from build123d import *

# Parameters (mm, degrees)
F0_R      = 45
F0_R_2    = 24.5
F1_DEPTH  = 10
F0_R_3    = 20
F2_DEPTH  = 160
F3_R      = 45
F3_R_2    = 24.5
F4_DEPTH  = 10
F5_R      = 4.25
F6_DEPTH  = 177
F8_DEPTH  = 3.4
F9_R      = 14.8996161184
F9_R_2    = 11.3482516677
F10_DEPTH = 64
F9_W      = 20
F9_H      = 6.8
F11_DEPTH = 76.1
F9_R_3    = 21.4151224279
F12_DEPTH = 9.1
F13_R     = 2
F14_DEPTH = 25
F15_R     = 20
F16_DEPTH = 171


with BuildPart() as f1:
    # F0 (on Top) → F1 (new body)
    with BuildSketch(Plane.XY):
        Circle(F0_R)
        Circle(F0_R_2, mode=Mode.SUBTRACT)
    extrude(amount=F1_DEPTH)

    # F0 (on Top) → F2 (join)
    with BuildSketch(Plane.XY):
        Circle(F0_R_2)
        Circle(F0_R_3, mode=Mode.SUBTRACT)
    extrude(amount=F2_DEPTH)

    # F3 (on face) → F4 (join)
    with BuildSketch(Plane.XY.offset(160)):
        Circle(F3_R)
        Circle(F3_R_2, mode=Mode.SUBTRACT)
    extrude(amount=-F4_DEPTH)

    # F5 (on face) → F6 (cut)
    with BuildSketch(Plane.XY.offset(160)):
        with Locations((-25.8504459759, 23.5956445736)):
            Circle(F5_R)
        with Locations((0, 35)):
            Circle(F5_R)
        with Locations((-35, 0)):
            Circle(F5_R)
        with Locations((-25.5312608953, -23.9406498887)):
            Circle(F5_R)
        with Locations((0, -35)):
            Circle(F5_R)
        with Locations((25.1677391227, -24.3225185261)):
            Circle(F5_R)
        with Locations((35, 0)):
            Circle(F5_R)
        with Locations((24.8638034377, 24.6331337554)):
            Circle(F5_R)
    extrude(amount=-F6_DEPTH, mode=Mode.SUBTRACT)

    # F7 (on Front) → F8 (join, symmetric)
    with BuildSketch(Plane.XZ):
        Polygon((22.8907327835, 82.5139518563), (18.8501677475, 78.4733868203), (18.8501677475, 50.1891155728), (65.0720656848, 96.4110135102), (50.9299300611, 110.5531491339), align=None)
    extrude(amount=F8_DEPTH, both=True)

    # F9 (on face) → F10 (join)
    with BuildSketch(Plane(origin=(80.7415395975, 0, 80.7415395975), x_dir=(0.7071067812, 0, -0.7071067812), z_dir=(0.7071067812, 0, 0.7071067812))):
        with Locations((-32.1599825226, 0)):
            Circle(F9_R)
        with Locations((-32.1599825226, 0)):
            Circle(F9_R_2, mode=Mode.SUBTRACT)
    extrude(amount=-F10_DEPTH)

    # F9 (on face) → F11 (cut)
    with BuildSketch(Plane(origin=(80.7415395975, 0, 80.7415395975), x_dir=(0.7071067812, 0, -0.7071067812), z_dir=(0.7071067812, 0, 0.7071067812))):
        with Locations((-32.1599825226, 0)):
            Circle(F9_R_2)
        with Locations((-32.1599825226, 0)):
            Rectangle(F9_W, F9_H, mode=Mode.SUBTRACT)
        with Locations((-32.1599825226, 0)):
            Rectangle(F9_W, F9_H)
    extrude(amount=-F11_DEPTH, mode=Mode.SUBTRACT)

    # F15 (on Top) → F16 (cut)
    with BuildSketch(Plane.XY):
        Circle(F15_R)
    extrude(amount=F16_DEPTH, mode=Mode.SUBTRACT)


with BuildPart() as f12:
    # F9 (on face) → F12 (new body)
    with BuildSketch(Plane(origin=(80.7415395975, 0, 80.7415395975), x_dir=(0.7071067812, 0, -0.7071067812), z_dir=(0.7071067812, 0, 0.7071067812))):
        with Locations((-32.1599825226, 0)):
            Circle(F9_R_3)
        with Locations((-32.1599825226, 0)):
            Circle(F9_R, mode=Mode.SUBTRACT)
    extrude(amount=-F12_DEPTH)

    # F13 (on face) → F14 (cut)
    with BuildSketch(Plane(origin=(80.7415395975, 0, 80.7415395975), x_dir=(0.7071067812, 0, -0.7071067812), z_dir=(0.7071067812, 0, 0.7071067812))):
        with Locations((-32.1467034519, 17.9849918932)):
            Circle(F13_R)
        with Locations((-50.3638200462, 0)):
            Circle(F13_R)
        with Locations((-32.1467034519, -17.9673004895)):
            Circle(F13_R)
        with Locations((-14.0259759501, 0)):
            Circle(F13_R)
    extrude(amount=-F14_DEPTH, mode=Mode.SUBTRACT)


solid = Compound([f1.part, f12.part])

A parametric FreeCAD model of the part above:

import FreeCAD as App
import Part
import Sketcher
Q = App.Units.Quantity


def add_polygon(sketch, points):
    """Adds a closed chain of lines whose ends are joined by coincident constraints."""
    first, n = sketch.GeometryCount, len(points)
    for a, b in zip(points, points[1:] + points[:1]):
        sketch.addGeometry(Part.LineSegment(App.Vector(*a, 0), App.Vector(*b, 0)), False)
    for i in range(n):
        sketch.addConstraint(Sketcher.Constraint("Coincident", first + i, 2, first + (i + 1) % n, 1))

doc = App.newDocument("Part")
params = doc.addObject("Spreadsheet::Sheet", "Params")
for row, (alias, value) in enumerate([
    ("sketch1_diameter", "90 mm"),
    ("sketch1_diameter2", "49 mm"),
    ("pad1_length", "10 mm"),
    ("sketch2_diameter", "49 mm"),
    ("sketch2_diameter2", "40 mm"),
    ("pad2_length", "160 mm"),
    ("sketch3_diameter", "90 mm"),
    ("sketch3_diameter2", "49 mm"),
    ("pad3_length", "10 mm"),
    ("sketch4_diameter", "8.5 mm"),
    ("pocket1_length", "177 mm"),
    ("sketch5_length", "20 mm"),
    ("pad4_length", "6.8 mm"),
    ("pad5_length", "64 mm"),
    ("pocket2_length", "76.1 mm"),
    ("sketch8_diameter", "40 mm"),
    ("pocket3_length", "171 mm"),
    ("pad6_length", "9.1 mm"),
    ("sketch10_diameter", "4 mm"),
    ("pocket4_length", "25 mm"),
], start=1):
    params.set(f"A{row}", alias)
    params.set(f"B{row}", "=" + value)
    params.setAlias(f"B{row}", alias)

body = doc.addObject("PartDesign::Body", "Body")

# Sketch on XY plane
sketch1 = body.newObject("Sketcher::SketchObject", "Sketch")
sketch1.AttachmentSupport = (doc.getObject("XY_Plane"), [""])
sketch1.MapMode = "FlatFace"
sketch1.addGeometry([
    Part.Circle(App.Vector(0, 0, 0), App.Vector(0, 0, 1), 45),
    Part.Circle(App.Vector(0, 0, 0), App.Vector(0, 0, 1), 24),
], False)
sketch1.addConstraint([
    Sketcher.Constraint("Coincident", 0, 3, -1, 1),
    Sketcher.Constraint("Coincident", 1, 3, -1, 1),
    Sketcher.Constraint("Diameter", 0, Q("90 mm")),
    Sketcher.Constraint("Diameter", 1, Q("49 mm")),
])
sketch1.setExpression("Constraints[2]", "Params.sketch1_diameter")
sketch1.setExpression("Constraints[3]", "Params.sketch1_diameter2")
pad1 = body.newObject("PartDesign::Pad", "Pad")
pad1.Profile = sketch1
pad1.setExpression("Length", "Params.pad1_length")

# Sketch on XY plane
sketch2 = body.newObject("Sketcher::SketchObject", "Sketch001")
sketch2.AttachmentSupport = (doc.getObject("XY_Plane"), [""])
sketch2.MapMode = "FlatFace"
sketch2.addGeometry([
    Part.Circle(App.Vector(0, 0, 0), App.Vector(0, 0, 1), 24),
    Part.Circle(App.Vector(0, 0, 0), App.Vector(0, 0, 1), 20),
], False)
sketch2.addConstraint([
    Sketcher.Constraint("Coincident", 0, 3, -1, 1),
    Sketcher.Constraint("Coincident", 1, 3, -1, 1),
    Sketcher.Constraint("Diameter", 0, Q("49 mm")),
    Sketcher.Constraint("Diameter", 1, Q("40 mm")),
])
sketch2.setExpression("Constraints[2]", "Params.sketch2_diameter")
sketch2.setExpression("Constraints[3]", "Params.sketch2_diameter2")
pad2 = body.newObject("PartDesign::Pad", "Pad001")
pad2.Profile = sketch2
pad2.setExpression("Length", "Params.pad2_length")

# Sketch on XY plane
sketch3 = body.newObject("Sketcher::SketchObject", "Sketch002")
sketch3.AttachmentSupport = (doc.getObject("XY_Plane"), [""])
sketch3.MapMode = "FlatFace"
sketch3.AttachmentOffset = App.Placement(App.Vector(0, 0, 160), App.Rotation())
sketch3.addGeometry([
    Part.Circle(App.Vector(0, 0, 0), App.Vector(0, 0, 1), 45),
    Part.Circle(App.Vector(0, 0, 0), App.Vector(0, 0, 1), 24),
], False)
sketch3.addConstraint([
    Sketcher.Constraint("Coincident", 0, 3, -1, 1),
    Sketcher.Constraint("Coincident", 1, 3, -1, 1),
    Sketcher.Constraint("Diameter", 0, Q("90 mm")),
    Sketcher.Constraint("Diameter", 1, Q("49 mm")),
])
sketch3.setExpression("Constraints[2]", "Params.sketch3_diameter")
sketch3.setExpression("Constraints[3]", "Params.sketch3_diameter2")
pad3 = body.newObject("PartDesign::Pad", "Pad002")
pad3.Profile = sketch3
pad3.setExpression("Length", "Params.pad3_length")
pad3.Reversed = True

# Sketch on XY plane
sketch4 = body.newObject("Sketcher::SketchObject", "Sketch003")
sketch4.AttachmentSupport = (doc.getObject("XY_Plane"), [""])
sketch4.MapMode = "FlatFace"
sketch4.AttachmentOffset = App.Placement(App.Vector(0, 0, 160), App.Rotation())
sketch4.addGeometry([
    Part.Circle(App.Vector(-25.9, 23.6, 0), App.Vector(0, 0, 1), 4.2),  # 0
    Part.Circle(App.Vector(0, 35, 0), App.Vector(0, 0, 1), 4.2),  # 1
    Part.Circle(App.Vector(-35, 0, 0), App.Vector(0, 0, 1), 4.2),  # 2
    Part.Circle(App.Vector(-25.5, -23.9, 0), App.Vector(0, 0, 1), 4.2),  # 3
    Part.Circle(App.Vector(0, -35, 0), App.Vector(0, 0, 1), 4.2),  # 4
    Part.Circle(App.Vector(25.2, -24.3, 0), App.Vector(0, 0, 1), 4.2),  # 5
    Part.Circle(App.Vector(35, 0, 0), App.Vector(0, 0, 1), 4.2),  # 6
    Part.Circle(App.Vector(24.9, 24.6, 0), App.Vector(0, 0, 1), 4.2),  # 7
], False)
sketch4.addConstraint([
    Sketcher.Constraint("Equal", 0, 1),
    Sketcher.Constraint("Equal", 1, 2),
    Sketcher.Constraint("Equal", 2, 3),
    Sketcher.Constraint("Equal", 3, 4),
    Sketcher.Constraint("Equal", 4, 5),
    Sketcher.Constraint("Equal", 5, 6),
    Sketcher.Constraint("Equal", 6, 7),
    Sketcher.Constraint("Symmetric", 1, 3, 4, 3, -1, 1),
    Sketcher.Constraint("Symmetric", 2, 3, 6, 3, -1, 1),
    Sketcher.Constraint("PointOnObject", 1, 3, -2),
    Sketcher.Constraint("PointOnObject", 2, 3, -1),
    Sketcher.Constraint("Diameter", 0, Q("8.5 mm")),
    Sketcher.Constraint("DistanceY", -1, 1, 1, 3, Q("35 mm")),
    Sketcher.Constraint("DistanceX", 2, 3, -1, 1, Q("35 mm")),
    Sketcher.Constraint("DistanceX", 3, 3, 5, 3, Q("50.699 mm")),
    Sketcher.Constraint("DistanceX", 3, 3, -1, 1, Q("25.531261 mm")),
    Sketcher.Constraint("DistanceY", 3, 3, -1, 1, Q("23.94065 mm")),
    Sketcher.Constraint("DistanceY", 5, 3, -1, 1, Q("24.322519 mm")),
    Sketcher.Constraint("DistanceX", 0, 3, 7, 3, Q("50.714249 mm")),
    Sketcher.Constraint("DistanceY", 0, 3, 7, 3, Q("1.037489 mm")),
    Sketcher.Constraint("DistanceX", 0, 3, -1, 1, Q("25.850446 mm")),
    Sketcher.Constraint("DistanceY", -1, 1, 0, 3, Q("23.595645 mm")),
])
sketch4.setExpression("Constraints[11]", "Params.sketch4_diameter")
pocket1 = body.newObject("PartDesign::Pocket", "Pocket")
pocket1.Profile = sketch4
pocket1.setExpression("Length", "Params.pocket1_length")

# Sketch on XZ plane
sketch5 = body.newObject("Sketcher::SketchObject", "Sketch004")
sketch5.AttachmentSupport = (doc.getObject("XZ_Plane"), [""])
sketch5.MapMode = "FlatFace"
add_polygon(sketch5, [(19, 78), (19, 50), (65, 96), (51, 111)])  # lines 0-3
sketch5.addConstraint([
    Sketcher.Constraint("Vertical", 0),
    Sketcher.Constraint("Perpendicular", 1, 2),
    Sketcher.Constraint("Perpendicular", 2, 3),
    Sketcher.Constraint("Angle", 1, Q("45 deg")),
    Sketcher.Constraint("Distance", 2, Q("20 mm")),
    Sketcher.Constraint("DistanceX", -1, 1, 2, 2, Q("50.92993 mm")),
    Sketcher.Constraint("DistanceY", -1, 1, 2, 2, Q("110.553149 mm")),
    Sketcher.Constraint("Distance", 1, Q("65.367635 mm")),
])
sketch5.setExpression("Constraints[8]", "Params.sketch5_length")
pad4 = body.newObject("PartDesign::Pad", "Pad003")
pad4.Profile = sketch5
pad4.setExpression("Length", "Params.pad4_length")
pad4.Midplane = True

# Sketch on an angled plane
sketch6 = body.newObject("Sketcher::SketchObject", "Sketch005")
sketch6.Placement = App.Placement(App.Vector(80.74154, 0, 80.74154), App.Rotation(App.Vector(0.707106781, 0, -0.707106781), App.Vector(0, 0.999999999, 0), App.Vector(0.707106781, 0, 0.707106781), "ZXY"))
sketch6.addGeometry([
    Part.Circle(App.Vector(-32, 0, 0), App.Vector(0, 0, 1), 15),
    Part.Circle(App.Vector(-32, 0, 0), App.Vector(0, 0, 1), 11),
], False)
sketch6.addConstraint([
    Sketcher.Constraint("Coincident", 1, 3, 0, 3),
    Sketcher.Constraint("PointOnObject", 0, 3, -1),
    Sketcher.Constraint("Diameter", 0, Q("29.799232 mm")),
    Sketcher.Constraint("Diameter", 1, Q("22.696503 mm")),
    Sketcher.Constraint("DistanceX", 0, 3, -1, 1, Q("32.159983 mm")),
])
pad5 = body.newObject("PartDesign::Pad", "Pad004")
pad5.Profile = sketch6
pad5.setExpression("Length", "Params.pad5_length")
pad5.Reversed = True

# Sketch on an angled plane
sketch7 = body.newObject("Sketcher::SketchObject", "Sketch006")
sketch7.Placement = App.Placement(App.Vector(80.74154, 0, 80.74154), App.Rotation(App.Vector(0.707106781, 0, -0.707106781), App.Vector(0, 0.999999999, 0), App.Vector(0.707106781, 0, 0.707106781), "ZXY"))
sketch7.addGeometry(Part.Circle(App.Vector(-32, 0, 0), App.Vector(0, 0, 1), 11), False)
sketch7.addConstraint([
    Sketcher.Constraint("PointOnObject", 0, 3, -1),
    Sketcher.Constraint("Diameter", 0, Q("22.696503 mm")),
    Sketcher.Constraint("DistanceX", 0, 3, -1, 1, Q("32.159983 mm")),
])
pocket2 = body.newObject("PartDesign::Pocket", "Pocket001")
pocket2.Profile = sketch7
pocket2.setExpression("Length", "Params.pocket2_length")

# Sketch on XY plane
sketch8 = body.newObject("Sketcher::SketchObject", "Sketch007")
sketch8.AttachmentSupport = (doc.getObject("XY_Plane"), [""])
sketch8.MapMode = "FlatFace"
sketch8.addGeometry(Part.Circle(App.Vector(0, 0, 0), App.Vector(0, 0, 1), 20), False)
sketch8.addConstraint([
    Sketcher.Constraint("Coincident", 0, 3, -1, 1),
    Sketcher.Constraint("Diameter", 0, Q("40 mm")),
])
sketch8.setExpression("Constraints[1]", "Params.sketch8_diameter")
pocket3 = body.newObject("PartDesign::Pocket", "Pocket002")
pocket3.Profile = sketch8
pocket3.setExpression("Length", "Params.pocket3_length")
pocket3.Reversed = True
body2 = doc.addObject("PartDesign::Body", "Body001")

# Sketch on an angled plane
sketch9 = body2.newObject("Sketcher::SketchObject", "Sketch008")
sketch9.Placement = App.Placement(App.Vector(80.74154, 0, 80.74154), App.Rotation(App.Vector(0.707106781, 0, -0.707106781), App.Vector(0, 0.999999999, 0), App.Vector(0.707106781, 0, 0.707106781), "ZXY"))
sketch9.addGeometry([
    Part.Circle(App.Vector(-32, 0, 0), App.Vector(0, 0, 1), 21),
    Part.Circle(App.Vector(-32, 0, 0), App.Vector(0, 0, 1), 15),
], False)
sketch9.addConstraint([
    Sketcher.Constraint("Coincident", 1, 3, 0, 3),
    Sketcher.Constraint("PointOnObject", 0, 3, -1),
    Sketcher.Constraint("Diameter", 0, Q("42.830245 mm")),
    Sketcher.Constraint("Diameter", 1, Q("29.799232 mm")),
    Sketcher.Constraint("DistanceX", 0, 3, -1, 1, Q("32.159983 mm")),
])
pad6 = body2.newObject("PartDesign::Pad", "Pad005")
pad6.Profile = sketch9
pad6.setExpression("Length", "Params.pad6_length")
pad6.Reversed = True

# Sketch on an angled plane
sketch10 = body2.newObject("Sketcher::SketchObject", "Sketch009")
sketch10.Placement = App.Placement(App.Vector(80.74154, 0, 80.74154), App.Rotation(App.Vector(0.707106781, 0, -0.707106781), App.Vector(0, 0.999999999, 0), App.Vector(0.707106781, 0, 0.707106781), "ZXY"))
sketch10.addGeometry([
    Part.Circle(App.Vector(-32.1, 18, 0), App.Vector(0, 0, 1), 2),
    Part.Circle(App.Vector(-50.4, 0, 0), App.Vector(0, 0, 1), 2),
    Part.Circle(App.Vector(-32.1, -18, 0), App.Vector(0, 0, 1), 2),
    Part.Circle(App.Vector(-14, 0, 0), App.Vector(0, 0, 1), 2),
], False)
sketch10.addConstraint([
    Sketcher.Constraint("Equal", 0, 1),
    Sketcher.Constraint("Equal", 1, 2),
    Sketcher.Constraint("Equal", 2, 3),
    Sketcher.Constraint("PointOnObject", 1, 3, -1),
    Sketcher.Constraint("PointOnObject", 3, 3, -1),
    Sketcher.Constraint("Vertical", 0, 3, 2, 3),
    Sketcher.Constraint("Diameter", 0, Q("4 mm")),
    Sketcher.Constraint("DistanceY", 2, 3, -1, 1, Q("17.9673 mm")),
    Sketcher.Constraint("DistanceY", -1, 1, 0, 3, Q("17.984992 mm")),
    Sketcher.Constraint("DistanceX", 1, 3, -1, 1, Q("50.36382 mm")),
    Sketcher.Constraint("DistanceX", 0, 3, -1, 1, Q("32.146703 mm")),
    Sketcher.Constraint("DistanceX", 3, 3, -1, 1, Q("14.025976 mm")),
])
sketch10.setExpression("Constraints[6]", "Params.sketch10_diameter")
pocket4 = body2.newObject("PartDesign::Pocket", "Pocket003")
pocket4.Profile = sketch10
pocket4.setExpression("Length", "Params.pocket4_length")

doc.recompute()
